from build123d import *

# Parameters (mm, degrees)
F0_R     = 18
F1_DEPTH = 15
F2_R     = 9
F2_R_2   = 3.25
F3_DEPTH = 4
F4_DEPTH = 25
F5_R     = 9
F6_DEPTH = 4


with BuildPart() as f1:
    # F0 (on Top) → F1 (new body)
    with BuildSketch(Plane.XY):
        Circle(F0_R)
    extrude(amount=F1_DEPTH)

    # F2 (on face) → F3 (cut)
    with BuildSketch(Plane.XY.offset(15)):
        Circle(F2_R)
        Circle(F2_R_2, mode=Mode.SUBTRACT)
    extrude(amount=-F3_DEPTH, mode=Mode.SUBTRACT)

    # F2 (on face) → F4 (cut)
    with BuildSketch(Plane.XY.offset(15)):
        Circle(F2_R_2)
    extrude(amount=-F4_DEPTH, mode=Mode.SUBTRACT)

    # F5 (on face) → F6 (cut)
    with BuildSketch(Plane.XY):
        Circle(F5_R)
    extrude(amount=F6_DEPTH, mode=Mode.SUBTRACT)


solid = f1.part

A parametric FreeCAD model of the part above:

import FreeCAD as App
import Part
import Sketcher

doc = App.newDocument("Part")
body = doc.addObject("PartDesign::Body", "Body")

# Sketch on XY plane
sketch1 = body.newObject("Sketcher::SketchObject", "Sketch")
sketch1.AttachmentSupport = (doc.getObject("XY_Plane"), [""])
sketch1.MapMode = "FlatFace"
sketch1.addGeometry(Part.Circle(App.Vector(0, 0, 0), App.Vector(0, 0, 1), 18), False)
sketch1.addConstraint([
    Sketcher.Constraint("Coincident", 0, 3, -1, 1),
    Sketcher.Constraint("Diameter", 0, 36.0),
])
pad1 = body.newObject("PartDesign::Pad", "Pad")
pad1.Profile = sketch1
pad1.Length = 15

# Sketch on XY plane
sketch2 = body.newObject("Sketcher::SketchObject", "Sketch001")
sketch2.AttachmentSupport = (doc.getObject("XY_Plane"), [""])
sketch2.MapMode = "FlatFace"
sketch2.AttachmentOffset = App.Placement(App.Vector(0, 0, 15), App.Rotation())
sketch2.addGeometry([
    Part.Circle(App.Vector(0, 0, 0), App.Vector(0, 0, 1), 9),
    Part.Circle(App.Vector(0, 0, 0), App.Vector(0, 0, 1), 3.2),
], False)
sketch2.addConstraint([
    Sketcher.Constraint("Coincident", 0, 3, -1, 1),
    Sketcher.Constraint("Coincident", 1, 3, -1, 1),
    Sketcher.Constraint("Diameter", 0, 18.0),
    Sketcher.Constraint("Diameter", 1, 6.5),
])
pocket1 = body.newObject("PartDesign::Pocket", "Pocket")
pocket1.Profile = sketch2
pocket1.Length = 4

# Sketch on XY plane
sketch3 = body.newObject("Sketcher::SketchObject", "Sketch002")
sketch3.AttachmentSupport = (doc.getObject("XY_Plane"), [""])
sketch3.MapMode = "FlatFace"
sketch3.AttachmentOffset = App.Placement(App.Vector(0, 0, 15), App.Rotation())
sketch3.addGeometry(Part.Circle(App.Vector(0, 0, 0), App.Vector(0, 0, 1), 3.2), False)
sketch3.addConstraint([
    Sketcher.Constraint("Coincident", 0, 3, -1, 1),
    Sketcher.Constraint("Diameter", 0, 6.5),
])
pocket2 = body.newObject("PartDesign::Pocket", "Pocket001")
pocket2.Profile = sketch3
pocket2.Length = 25

# Sketch on XY plane
sketch4 = body.newObject("Sketcher::SketchObject", "Sketch003")
sketch4.AttachmentSupport = (doc.getObject("XY_Plane"), [""])
sketch4.MapMode = "FlatFace"
sketch4.addGeometry(Part.Circle(App.Vector(0, 0, 0), App.Vector(0, 0, 1), 9), False)
sketch4.addConstraint([
    Sketcher.Constraint("Coincident", 0, 3, -1, 1),
    Sketcher.Constraint("Diameter", 0, 18.0),
])
pocket3 = body.newObject("PartDesign::Pocket", "Pocket002")
pocket3.Profile = sketch4
pocket3.Length = 4
pocket3.Reversed = True

doc.recompute()
